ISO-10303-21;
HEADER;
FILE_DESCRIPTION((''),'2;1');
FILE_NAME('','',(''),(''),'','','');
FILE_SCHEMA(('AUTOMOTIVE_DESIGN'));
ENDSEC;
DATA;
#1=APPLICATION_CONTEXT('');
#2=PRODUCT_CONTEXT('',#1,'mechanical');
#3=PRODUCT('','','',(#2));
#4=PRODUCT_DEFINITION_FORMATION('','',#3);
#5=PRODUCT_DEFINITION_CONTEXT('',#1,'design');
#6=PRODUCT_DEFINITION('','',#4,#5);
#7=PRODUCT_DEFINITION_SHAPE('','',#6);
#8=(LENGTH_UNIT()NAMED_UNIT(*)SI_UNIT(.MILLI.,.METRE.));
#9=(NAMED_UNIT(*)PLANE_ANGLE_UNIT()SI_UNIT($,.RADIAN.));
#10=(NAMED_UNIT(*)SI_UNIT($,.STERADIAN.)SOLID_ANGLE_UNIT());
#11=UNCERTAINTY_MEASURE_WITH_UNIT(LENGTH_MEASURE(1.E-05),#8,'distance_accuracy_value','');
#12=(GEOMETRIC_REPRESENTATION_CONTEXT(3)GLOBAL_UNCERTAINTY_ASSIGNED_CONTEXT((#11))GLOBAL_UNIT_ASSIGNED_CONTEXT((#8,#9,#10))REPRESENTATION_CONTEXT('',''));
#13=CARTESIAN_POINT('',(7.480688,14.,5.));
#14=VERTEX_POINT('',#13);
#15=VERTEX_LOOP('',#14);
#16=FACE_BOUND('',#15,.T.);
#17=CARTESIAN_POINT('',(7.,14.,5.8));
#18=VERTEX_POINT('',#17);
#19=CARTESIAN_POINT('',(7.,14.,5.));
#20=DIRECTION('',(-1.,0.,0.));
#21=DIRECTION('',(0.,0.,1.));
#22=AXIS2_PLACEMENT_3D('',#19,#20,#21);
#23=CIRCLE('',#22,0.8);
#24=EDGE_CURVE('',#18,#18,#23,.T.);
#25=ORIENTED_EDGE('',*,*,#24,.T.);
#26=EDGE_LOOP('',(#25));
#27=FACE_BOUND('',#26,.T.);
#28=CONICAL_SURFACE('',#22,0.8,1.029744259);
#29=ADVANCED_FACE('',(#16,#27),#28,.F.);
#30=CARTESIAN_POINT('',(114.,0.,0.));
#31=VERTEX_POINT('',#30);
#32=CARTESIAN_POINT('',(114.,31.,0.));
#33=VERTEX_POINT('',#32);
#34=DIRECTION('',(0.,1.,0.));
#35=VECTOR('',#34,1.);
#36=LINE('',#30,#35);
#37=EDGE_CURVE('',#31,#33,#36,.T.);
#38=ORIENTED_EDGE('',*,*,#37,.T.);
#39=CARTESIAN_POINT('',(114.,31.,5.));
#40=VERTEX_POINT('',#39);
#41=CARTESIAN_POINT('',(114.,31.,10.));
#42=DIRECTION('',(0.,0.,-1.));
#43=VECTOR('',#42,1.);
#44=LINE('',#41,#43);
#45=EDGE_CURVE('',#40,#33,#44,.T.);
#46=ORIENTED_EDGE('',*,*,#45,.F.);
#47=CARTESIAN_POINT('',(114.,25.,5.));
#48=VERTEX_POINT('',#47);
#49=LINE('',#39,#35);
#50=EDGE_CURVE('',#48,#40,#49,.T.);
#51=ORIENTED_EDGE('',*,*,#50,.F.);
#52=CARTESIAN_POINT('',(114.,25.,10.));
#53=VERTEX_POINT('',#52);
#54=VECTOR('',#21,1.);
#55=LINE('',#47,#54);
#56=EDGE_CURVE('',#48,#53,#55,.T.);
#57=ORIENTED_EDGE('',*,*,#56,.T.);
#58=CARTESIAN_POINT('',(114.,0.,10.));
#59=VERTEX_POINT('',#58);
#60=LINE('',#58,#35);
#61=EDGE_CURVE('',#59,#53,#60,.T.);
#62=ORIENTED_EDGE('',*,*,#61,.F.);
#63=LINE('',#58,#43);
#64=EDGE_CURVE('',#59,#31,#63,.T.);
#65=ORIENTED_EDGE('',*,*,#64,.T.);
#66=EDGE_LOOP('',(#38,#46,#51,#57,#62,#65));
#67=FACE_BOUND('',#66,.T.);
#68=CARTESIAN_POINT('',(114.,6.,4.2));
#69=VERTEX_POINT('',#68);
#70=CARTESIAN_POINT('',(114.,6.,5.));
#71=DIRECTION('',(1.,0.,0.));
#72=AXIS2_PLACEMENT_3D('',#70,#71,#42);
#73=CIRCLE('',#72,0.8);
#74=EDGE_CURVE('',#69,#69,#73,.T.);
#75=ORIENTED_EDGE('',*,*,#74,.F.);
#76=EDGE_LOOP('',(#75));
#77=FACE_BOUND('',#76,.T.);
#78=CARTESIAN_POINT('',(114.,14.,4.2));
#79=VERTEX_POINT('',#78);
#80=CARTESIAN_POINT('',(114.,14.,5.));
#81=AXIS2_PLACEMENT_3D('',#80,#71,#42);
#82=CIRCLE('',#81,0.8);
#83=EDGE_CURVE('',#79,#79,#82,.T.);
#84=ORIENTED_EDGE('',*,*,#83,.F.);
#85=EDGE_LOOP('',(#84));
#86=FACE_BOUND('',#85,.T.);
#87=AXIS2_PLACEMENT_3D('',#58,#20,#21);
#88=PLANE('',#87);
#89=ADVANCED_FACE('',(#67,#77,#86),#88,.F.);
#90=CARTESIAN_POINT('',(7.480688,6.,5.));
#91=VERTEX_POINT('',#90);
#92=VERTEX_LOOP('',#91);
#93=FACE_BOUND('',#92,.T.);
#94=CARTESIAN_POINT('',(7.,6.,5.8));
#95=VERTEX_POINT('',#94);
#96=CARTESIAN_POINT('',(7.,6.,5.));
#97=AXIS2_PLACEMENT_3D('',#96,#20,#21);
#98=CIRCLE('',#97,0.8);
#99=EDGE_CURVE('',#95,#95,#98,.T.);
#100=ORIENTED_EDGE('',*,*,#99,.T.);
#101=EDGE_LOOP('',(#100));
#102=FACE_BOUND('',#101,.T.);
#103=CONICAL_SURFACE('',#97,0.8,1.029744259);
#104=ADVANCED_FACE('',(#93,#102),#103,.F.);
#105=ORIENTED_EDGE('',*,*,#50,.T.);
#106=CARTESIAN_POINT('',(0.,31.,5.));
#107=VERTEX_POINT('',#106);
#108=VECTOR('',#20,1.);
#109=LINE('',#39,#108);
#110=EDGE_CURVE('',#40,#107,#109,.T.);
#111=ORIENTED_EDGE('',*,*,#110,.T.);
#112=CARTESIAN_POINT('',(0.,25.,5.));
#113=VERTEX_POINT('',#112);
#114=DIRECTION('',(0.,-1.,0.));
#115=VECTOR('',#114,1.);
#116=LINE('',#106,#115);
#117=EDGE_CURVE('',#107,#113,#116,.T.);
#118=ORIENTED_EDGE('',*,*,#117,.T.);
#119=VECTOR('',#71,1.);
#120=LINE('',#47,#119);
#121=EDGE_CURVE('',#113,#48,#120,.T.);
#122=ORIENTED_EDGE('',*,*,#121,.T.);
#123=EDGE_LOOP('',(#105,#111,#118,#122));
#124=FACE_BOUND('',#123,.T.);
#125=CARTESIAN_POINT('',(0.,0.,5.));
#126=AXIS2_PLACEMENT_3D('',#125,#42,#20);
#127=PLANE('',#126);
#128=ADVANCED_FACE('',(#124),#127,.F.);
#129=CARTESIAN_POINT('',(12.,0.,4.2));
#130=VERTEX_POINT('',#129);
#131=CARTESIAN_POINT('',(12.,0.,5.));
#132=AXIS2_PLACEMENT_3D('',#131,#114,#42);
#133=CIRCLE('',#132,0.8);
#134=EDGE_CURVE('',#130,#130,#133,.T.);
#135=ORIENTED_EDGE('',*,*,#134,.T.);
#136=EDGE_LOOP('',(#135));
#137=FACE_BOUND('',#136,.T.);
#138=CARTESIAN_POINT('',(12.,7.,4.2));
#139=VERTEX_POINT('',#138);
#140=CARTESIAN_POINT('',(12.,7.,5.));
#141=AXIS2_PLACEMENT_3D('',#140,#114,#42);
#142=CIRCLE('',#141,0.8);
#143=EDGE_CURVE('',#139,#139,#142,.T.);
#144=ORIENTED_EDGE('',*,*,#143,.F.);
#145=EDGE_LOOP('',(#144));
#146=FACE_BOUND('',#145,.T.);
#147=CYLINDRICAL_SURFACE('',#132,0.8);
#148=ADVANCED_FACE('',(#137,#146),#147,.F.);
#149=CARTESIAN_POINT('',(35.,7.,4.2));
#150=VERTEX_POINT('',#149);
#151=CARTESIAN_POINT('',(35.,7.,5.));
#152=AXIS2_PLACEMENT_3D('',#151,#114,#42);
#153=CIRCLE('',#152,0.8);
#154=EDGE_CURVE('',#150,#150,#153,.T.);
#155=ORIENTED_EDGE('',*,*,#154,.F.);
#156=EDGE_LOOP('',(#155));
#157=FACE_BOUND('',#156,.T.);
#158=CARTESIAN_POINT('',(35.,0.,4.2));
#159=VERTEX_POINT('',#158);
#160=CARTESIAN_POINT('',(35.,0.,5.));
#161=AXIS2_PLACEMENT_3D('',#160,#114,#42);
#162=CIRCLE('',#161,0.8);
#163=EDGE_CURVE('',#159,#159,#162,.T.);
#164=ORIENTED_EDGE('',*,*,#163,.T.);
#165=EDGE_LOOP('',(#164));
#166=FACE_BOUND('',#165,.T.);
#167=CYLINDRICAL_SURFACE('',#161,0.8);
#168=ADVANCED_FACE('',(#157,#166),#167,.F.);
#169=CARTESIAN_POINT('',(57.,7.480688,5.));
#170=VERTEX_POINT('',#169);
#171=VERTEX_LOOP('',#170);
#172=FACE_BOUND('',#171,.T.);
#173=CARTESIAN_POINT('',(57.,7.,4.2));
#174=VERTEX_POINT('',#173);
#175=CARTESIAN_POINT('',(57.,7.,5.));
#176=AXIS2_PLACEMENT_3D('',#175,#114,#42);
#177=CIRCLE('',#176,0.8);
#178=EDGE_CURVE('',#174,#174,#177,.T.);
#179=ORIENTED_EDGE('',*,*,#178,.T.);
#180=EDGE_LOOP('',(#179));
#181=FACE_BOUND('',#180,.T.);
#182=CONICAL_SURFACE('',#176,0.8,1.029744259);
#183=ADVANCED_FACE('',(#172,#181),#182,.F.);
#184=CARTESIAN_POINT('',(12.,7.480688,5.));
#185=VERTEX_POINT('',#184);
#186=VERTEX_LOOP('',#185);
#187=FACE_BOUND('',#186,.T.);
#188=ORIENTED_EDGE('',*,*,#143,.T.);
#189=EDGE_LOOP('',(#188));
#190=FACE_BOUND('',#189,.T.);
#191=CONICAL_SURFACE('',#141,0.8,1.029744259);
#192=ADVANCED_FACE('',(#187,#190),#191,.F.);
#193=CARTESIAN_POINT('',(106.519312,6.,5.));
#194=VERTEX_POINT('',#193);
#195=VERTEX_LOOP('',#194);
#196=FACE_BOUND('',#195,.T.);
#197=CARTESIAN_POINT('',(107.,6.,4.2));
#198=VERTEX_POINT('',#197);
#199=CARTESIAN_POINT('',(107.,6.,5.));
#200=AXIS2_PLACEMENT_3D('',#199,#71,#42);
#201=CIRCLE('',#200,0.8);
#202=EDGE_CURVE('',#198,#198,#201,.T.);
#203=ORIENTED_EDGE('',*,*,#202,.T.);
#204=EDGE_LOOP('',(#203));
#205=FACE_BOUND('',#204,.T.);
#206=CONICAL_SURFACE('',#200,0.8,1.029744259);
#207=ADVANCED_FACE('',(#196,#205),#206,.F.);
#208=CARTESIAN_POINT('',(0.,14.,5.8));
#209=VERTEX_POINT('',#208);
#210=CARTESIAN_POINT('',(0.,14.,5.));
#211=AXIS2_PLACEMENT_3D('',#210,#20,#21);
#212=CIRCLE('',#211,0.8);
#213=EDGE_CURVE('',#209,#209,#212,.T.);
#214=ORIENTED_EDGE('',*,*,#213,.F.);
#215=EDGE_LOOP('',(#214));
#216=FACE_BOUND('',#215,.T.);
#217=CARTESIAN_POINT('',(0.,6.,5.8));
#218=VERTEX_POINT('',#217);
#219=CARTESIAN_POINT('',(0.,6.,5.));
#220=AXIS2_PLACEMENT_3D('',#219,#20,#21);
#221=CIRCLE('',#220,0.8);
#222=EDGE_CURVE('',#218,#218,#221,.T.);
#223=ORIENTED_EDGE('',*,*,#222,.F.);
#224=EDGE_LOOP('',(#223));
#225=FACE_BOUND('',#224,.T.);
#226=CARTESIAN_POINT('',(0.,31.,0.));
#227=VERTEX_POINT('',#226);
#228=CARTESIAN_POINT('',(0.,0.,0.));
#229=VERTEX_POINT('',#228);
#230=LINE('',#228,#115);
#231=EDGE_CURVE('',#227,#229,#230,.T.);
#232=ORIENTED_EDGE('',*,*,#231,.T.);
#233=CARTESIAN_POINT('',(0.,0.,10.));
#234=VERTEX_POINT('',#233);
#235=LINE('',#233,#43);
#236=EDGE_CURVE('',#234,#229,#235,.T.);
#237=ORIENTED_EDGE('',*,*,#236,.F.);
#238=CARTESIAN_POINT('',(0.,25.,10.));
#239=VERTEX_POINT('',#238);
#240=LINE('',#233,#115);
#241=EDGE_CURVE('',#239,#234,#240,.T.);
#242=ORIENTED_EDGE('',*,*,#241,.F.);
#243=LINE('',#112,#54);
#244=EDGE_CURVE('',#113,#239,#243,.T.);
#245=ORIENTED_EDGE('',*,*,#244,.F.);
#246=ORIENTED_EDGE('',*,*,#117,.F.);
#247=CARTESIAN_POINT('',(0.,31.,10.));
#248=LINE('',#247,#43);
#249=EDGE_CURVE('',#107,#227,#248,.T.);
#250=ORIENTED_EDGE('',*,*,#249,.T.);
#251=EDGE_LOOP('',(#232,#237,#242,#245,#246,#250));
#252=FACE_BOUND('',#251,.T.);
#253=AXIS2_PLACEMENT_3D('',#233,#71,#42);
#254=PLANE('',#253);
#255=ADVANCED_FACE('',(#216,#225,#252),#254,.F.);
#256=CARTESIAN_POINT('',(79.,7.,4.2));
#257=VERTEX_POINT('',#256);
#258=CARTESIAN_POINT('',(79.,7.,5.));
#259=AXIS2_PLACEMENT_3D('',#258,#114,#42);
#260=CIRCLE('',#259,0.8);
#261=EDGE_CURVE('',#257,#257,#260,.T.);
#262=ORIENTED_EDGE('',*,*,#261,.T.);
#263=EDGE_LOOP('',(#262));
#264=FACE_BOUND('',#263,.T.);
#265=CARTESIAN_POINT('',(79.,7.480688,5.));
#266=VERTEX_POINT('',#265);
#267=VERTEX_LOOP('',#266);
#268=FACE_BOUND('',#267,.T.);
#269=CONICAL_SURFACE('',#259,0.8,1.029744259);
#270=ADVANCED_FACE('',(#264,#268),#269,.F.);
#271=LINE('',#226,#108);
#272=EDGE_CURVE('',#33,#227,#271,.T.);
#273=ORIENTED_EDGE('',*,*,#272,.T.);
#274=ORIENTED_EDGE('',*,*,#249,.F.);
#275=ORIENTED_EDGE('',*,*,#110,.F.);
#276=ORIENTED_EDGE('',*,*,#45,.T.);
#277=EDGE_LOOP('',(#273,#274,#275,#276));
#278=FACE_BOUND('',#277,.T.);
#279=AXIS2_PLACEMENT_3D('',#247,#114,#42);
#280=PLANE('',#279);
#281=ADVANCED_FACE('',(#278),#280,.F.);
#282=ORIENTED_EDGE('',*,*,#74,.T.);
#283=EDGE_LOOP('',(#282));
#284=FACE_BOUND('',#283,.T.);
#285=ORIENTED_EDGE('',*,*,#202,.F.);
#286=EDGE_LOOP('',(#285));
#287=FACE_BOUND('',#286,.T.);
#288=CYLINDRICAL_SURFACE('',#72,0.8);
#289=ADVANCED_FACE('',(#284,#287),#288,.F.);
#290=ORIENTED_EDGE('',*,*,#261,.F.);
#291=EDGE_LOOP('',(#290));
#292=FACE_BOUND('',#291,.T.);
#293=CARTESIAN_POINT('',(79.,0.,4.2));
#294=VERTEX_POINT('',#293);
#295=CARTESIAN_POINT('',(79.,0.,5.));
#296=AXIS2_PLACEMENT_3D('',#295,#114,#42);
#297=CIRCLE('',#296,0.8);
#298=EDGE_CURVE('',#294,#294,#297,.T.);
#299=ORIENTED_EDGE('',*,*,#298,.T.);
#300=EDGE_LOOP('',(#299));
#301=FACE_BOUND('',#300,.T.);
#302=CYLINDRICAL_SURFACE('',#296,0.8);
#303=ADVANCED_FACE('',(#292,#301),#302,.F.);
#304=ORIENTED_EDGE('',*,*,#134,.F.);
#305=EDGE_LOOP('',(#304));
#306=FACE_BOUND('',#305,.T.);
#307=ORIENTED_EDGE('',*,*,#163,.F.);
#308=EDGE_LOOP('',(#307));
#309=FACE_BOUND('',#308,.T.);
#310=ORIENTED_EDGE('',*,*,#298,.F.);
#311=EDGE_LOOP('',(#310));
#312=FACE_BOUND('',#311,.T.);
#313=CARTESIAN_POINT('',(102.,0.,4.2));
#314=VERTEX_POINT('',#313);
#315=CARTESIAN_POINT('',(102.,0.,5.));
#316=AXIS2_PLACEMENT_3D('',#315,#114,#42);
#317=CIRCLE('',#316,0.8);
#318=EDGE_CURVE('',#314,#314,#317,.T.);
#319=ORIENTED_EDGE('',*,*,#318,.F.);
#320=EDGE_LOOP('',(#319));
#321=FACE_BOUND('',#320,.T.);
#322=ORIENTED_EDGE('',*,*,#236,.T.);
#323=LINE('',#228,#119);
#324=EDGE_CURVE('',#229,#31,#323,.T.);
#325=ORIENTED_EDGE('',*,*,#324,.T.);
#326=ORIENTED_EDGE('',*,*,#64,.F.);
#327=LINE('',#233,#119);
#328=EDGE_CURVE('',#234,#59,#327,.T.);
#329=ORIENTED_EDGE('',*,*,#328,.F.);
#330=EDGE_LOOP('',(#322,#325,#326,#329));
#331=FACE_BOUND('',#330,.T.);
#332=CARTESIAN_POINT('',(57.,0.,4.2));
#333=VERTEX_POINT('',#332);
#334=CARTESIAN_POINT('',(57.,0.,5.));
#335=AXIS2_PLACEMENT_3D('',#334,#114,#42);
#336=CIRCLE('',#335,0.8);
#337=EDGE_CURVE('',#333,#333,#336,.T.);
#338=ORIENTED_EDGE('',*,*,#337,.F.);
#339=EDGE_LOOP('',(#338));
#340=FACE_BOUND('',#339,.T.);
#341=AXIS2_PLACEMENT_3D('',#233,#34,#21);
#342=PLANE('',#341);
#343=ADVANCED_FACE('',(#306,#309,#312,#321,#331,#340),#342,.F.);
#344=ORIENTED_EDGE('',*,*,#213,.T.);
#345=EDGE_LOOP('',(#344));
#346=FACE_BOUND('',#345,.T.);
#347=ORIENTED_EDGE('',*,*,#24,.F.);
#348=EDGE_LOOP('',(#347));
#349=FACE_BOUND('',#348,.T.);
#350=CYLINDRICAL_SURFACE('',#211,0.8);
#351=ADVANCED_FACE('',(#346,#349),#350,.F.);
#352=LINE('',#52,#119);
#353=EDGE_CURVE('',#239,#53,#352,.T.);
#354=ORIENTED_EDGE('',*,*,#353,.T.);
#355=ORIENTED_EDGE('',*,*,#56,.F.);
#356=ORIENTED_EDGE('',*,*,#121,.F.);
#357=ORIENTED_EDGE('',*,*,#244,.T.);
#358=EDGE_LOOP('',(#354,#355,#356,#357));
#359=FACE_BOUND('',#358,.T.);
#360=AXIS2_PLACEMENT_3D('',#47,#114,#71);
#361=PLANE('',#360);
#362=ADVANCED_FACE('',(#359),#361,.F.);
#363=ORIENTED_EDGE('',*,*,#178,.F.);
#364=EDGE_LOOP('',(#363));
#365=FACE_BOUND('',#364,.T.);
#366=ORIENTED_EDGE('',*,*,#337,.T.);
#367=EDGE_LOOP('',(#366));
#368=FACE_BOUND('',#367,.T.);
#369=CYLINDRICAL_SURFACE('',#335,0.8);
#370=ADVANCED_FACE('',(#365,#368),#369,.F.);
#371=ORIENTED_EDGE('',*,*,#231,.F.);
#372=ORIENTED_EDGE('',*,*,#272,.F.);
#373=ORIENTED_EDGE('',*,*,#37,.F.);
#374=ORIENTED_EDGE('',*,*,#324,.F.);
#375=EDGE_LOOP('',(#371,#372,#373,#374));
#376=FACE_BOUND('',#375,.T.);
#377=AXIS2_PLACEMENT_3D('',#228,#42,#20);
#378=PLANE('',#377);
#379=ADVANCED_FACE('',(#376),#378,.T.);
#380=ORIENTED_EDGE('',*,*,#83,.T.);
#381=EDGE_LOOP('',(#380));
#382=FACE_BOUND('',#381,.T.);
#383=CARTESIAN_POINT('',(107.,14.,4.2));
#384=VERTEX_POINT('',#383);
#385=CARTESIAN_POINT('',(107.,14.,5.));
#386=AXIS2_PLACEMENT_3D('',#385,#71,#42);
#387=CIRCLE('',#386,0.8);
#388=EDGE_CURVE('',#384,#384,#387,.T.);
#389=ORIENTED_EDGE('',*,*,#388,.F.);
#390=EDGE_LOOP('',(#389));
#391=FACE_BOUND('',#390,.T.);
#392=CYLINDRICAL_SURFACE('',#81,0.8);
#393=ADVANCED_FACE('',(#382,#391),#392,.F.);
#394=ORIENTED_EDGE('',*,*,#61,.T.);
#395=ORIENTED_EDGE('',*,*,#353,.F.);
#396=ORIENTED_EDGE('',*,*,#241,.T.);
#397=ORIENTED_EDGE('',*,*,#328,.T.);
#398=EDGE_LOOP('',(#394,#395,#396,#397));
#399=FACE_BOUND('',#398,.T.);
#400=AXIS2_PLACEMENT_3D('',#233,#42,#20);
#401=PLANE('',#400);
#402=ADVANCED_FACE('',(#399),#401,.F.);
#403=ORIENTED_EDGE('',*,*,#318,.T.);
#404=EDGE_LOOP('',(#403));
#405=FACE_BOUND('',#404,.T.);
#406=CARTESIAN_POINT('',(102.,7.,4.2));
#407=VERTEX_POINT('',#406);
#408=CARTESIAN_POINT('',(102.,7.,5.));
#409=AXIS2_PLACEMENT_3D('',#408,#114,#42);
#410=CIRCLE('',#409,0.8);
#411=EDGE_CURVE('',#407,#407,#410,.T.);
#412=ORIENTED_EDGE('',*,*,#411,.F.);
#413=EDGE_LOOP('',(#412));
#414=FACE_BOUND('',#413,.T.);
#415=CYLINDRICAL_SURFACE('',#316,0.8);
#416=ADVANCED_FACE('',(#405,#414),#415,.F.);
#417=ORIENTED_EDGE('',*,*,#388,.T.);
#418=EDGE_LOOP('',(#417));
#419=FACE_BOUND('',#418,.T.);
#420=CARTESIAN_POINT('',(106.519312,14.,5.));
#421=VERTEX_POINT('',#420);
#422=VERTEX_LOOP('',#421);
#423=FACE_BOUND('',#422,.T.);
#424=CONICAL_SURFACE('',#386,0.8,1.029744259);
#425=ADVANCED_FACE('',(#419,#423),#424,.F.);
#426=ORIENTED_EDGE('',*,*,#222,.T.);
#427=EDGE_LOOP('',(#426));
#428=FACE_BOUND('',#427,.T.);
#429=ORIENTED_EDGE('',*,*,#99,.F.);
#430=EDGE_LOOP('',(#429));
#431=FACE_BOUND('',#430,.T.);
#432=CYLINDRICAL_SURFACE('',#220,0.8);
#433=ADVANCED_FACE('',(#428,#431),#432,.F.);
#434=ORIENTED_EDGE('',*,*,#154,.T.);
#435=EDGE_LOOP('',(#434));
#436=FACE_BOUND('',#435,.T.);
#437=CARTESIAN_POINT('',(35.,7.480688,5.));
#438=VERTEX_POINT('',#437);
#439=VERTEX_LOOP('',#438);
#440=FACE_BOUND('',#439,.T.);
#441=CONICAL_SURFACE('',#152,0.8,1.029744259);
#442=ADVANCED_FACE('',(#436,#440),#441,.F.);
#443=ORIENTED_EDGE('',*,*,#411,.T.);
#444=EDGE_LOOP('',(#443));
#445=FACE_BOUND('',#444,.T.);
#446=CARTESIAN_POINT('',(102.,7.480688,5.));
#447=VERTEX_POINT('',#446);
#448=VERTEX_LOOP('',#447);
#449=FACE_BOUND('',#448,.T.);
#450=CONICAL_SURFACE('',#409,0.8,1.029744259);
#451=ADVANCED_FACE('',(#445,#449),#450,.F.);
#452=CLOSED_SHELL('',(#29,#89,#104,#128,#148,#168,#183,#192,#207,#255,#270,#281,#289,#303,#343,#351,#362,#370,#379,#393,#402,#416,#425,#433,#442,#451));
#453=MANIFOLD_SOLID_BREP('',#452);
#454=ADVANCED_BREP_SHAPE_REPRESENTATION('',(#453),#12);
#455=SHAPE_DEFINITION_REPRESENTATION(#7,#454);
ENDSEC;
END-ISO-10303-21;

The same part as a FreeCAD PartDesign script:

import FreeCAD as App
import Part
import Sketcher

V = App.Vector

doc = App.newDocument("Part")
body = doc.addObject("PartDesign::Body", "Body")

# Sketch on XY plane
sketch1 = doc.addObject("Sketcher::SketchObject", "Sketch")
body.addObject(sketch1)
sketch1.AttachmentSupport = (doc.XY_Plane, [""])
sketch1.MapMode = "FlatFace"
sketch1.addGeometry([
    Part.LineSegment(V(0, 31, 0), V(0, 0, 0)),
    Part.LineSegment(V(0, 0, 0), V(114, 0, 0)),
    Part.LineSegment(V(114, 0, 0), V(114, 31, 0)),
    Part.LineSegment(V(114, 31, 0), V(0, 31, 0)),
], False)
sketch1.addConstraint([
    Sketcher.Constraint("Coincident", 0, 2, 1, 1),
    Sketcher.Constraint("Coincident", 1, 2, 2, 1),
    Sketcher.Constraint("Coincident", 2, 2, 3, 1),
    Sketcher.Constraint("Coincident", 3, 2, 0, 1),
    Sketcher.Constraint("Vertical", 0),
    Sketcher.Constraint("Horizontal", 1),
    Sketcher.Constraint("Vertical", 2),
    Sketcher.Constraint("Horizontal", 3),
    Sketcher.Constraint("Coincident", 0, 2, -1, 1),
    Sketcher.Constraint("DistanceX", 1, 1, 1, 2, 114.0),
    Sketcher.Constraint("DistanceY", 0, 2, 0, 1, 31.0),
])
pad1 = doc.addObject("PartDesign::Pad", "Pad")
body.addObject(pad1)
pad1.Profile = sketch1
pad1.Length = 10

# Sketch on XY plane
sketch2 = doc.addObject("Sketcher::SketchObject", "Sketch001")
body.addObject(sketch2)
sketch2.AttachmentSupport = (doc.XY_Plane, [""])
sketch2.MapMode = "FlatFace"
sketch2.AttachmentOffset = App.Placement(V(0, 0, 10), App.Rotation())
sketch2.addGeometry([
    Part.LineSegment(V(0, 31, 0), V(0, 25, 0)),
    Part.LineSegment(V(0, 25, 0), V(114, 25, 0)),
    Part.LineSegment(V(114, 25, 0), V(114, 31, 0)),
    Part.LineSegment(V(114, 31, 0), V(0, 31, 0)),
], False)
sketch2.addConstraint([
    Sketcher.Constraint("Coincident", 0, 2, 1, 1),
    Sketcher.Constraint("Coincident", 1, 2, 2, 1),
    Sketcher.Constraint("Coincident", 2, 2, 3, 1),
    Sketcher.Constraint("Coincident", 3, 2, 0, 1),
    Sketcher.Constraint("Vertical", 0),
    Sketcher.Constraint("Horizontal", 1),
    Sketcher.Constraint("Vertical", 2),
    Sketcher.Constraint("Horizontal", 3),
    Sketcher.Constraint("PointOnObject", 0, 2, -2),
    Sketcher.Constraint("DistanceX", 1, 1, 1, 2, 114.0),
    Sketcher.Constraint("DistanceY", 0, 2, 0, 1, 6.0),
    Sketcher.Constraint("DistanceY", -1, 1, 0, 2, 25.0),
])
pocket1 = doc.addObject("PartDesign::Pocket", "Pocket")
body.addObject(pocket1)
pocket1.Profile = sketch2
pocket1.Length = 5

# Sketch on YZ plane
sketch3 = doc.addObject("Sketcher::SketchObject", "Sketch002")
body.addObject(sketch3)
sketch3.AttachmentSupport = (doc.YZ_Plane, [""])
sketch3.MapMode = "FlatFace"
sketch3.addGeometry([
    Part.Circle(V(14, 5, 0), V(0, 0, 1), 0.8),
    Part.Circle(V(6, 5, 0), V(0, 0, 1), 0.8),
], False)
sketch3.addConstraint([
    Sketcher.Constraint("Equal", 0, 1),
    Sketcher.Constraint("Horizontal", 0, 3, 1, 3),
    Sketcher.Constraint("Diameter", 0, 1.6),
    Sketcher.Constraint("DistanceX", -1, 1, 0, 3, 14.0),
    Sketcher.Constraint("DistanceY", -1, 1, 0, 3, 5.0),
    Sketcher.Constraint("DistanceX", -1, 1, 1, 3, 6.0),
])
doc.recompute()
hole = doc.addObject("PartDesign::Hole", "Hole")
body.addObject(hole)
hole.Profile = sketch3
hole.ThreadType = "None"
hole.Diameter = 1.6
hole.DepthType = "Dimension"
hole.Depth = 7
hole.DrillPoint = "Angled"
hole.DrillPointAngle = 118
hole.Reversed = True

# Sketch on YZ plane
sketch4 = doc.addObject("Sketcher::SketchObject", "Sketch003")
body.addObject(sketch4)
sketch4.AttachmentSupport = (doc.YZ_Plane, [""])
sketch4.MapMode = "FlatFace"
sketch4.AttachmentOffset = App.Placement(V(0, 0, 114), App.Rotation())
sketch4.addGeometry([
    Part.Circle(V(14, 5, 0), V(0, 0, 1), 0.8),
    Part.Circle(V(6, 5, 0), V(0, 0, 1), 0.8),
], False)
sketch4.addConstraint([
    Sketcher.Constraint("Equal", 0, 1),
    Sketcher.Constraint("Horizontal", 0, 3, 1, 3),
    Sketcher.Constraint("Diameter", 0, 1.6),
    Sketcher.Constraint("DistanceX", -1, 1, 0, 3, 14.0),
    Sketcher.Constraint("DistanceY", -1, 1, 0, 3, 5.0),
    Sketcher.Constraint("DistanceX", -1, 1, 1, 3, 6.0),
])
doc.recompute()
hole2 = doc.addObject("PartDesign::Hole", "Hole001")
body.addObject(hole2)
hole2.Profile = sketch4
hole2.ThreadType = "None"
hole2.Diameter = 1.6
hole2.DepthType = "Dimension"
hole2.Depth = 7
hole2.DrillPoint = "Angled"
hole2.DrillPointAngle = 118

# Sketch on XZ plane
sketch5 = doc.addObject("Sketcher::SketchObject", "Sketch004")
body.addObject(sketch5)
sketch5.AttachmentSupport = (doc.XZ_Plane, [""])
sketch5.MapMode = "FlatFace"
sketch5.addGeometry([
    Part.Circle(V(102, 5, 0), V(0, 0, 1), 0.8),  # 0
    Part.Circle(V(12, 5, 0), V(0, 0, 1), 0.8),  # 1
    Part.Circle(V(57, 5, 0), V(0, 0, 1), 0.8),  # 2
    Part.Circle(V(79, 5, 0), V(0, 0, 1), 0.8),  # 3
    Part.Circle(V(35, 5, 0), V(0, 0, 1), 0.8),  # 4
], False)
sketch5.addConstraint([
    Sketcher.Constraint("Equal", 0, 1),
    Sketcher.Constraint("Equal", 1, 2),
    Sketcher.Constraint("Equal", 2, 3),
    Sketcher.Constraint("Equal", 3, 4),
    Sketcher.Constraint("Horizontal", 0, 3, 1, 3),
    Sketcher.Constraint("Horizontal", 1, 3, 2, 3),
    Sketcher.Constraint("Horizontal", 2, 3, 3, 3),
    Sketcher.Constraint("Horizontal", 3, 3, 4, 3),
    Sketcher.Constraint("Diameter", 0, 1.6),
    Sketcher.Constraint("DistanceX", -1, 1, 0, 3, 102.0),
    Sketcher.Constraint("DistanceY", -1, 1, 0, 3, 5.0),
    Sketcher.Constraint("DistanceX", -1, 1, 1, 3, 12.0),
    Sketcher.Constraint("DistanceX", -1, 1, 2, 3, 57.0),
    Sketcher.Constraint("DistanceX", -1, 1, 3, 3, 79.0),
    Sketcher.Constraint("DistanceX", -1, 1, 4, 3, 35.0),
])
doc.recompute()
hole3 = doc.addObject("PartDesign::Hole", "Hole002")
body.addObject(hole3)
hole3.Profile = sketch5
hole3.ThreadType = "None"
hole3.Diameter = 1.6
hole3.DepthType = "Dimension"
hole3.Depth = 7
hole3.DrillPoint = "Angled"
hole3.DrillPointAngle = 118

doc.recompute()
